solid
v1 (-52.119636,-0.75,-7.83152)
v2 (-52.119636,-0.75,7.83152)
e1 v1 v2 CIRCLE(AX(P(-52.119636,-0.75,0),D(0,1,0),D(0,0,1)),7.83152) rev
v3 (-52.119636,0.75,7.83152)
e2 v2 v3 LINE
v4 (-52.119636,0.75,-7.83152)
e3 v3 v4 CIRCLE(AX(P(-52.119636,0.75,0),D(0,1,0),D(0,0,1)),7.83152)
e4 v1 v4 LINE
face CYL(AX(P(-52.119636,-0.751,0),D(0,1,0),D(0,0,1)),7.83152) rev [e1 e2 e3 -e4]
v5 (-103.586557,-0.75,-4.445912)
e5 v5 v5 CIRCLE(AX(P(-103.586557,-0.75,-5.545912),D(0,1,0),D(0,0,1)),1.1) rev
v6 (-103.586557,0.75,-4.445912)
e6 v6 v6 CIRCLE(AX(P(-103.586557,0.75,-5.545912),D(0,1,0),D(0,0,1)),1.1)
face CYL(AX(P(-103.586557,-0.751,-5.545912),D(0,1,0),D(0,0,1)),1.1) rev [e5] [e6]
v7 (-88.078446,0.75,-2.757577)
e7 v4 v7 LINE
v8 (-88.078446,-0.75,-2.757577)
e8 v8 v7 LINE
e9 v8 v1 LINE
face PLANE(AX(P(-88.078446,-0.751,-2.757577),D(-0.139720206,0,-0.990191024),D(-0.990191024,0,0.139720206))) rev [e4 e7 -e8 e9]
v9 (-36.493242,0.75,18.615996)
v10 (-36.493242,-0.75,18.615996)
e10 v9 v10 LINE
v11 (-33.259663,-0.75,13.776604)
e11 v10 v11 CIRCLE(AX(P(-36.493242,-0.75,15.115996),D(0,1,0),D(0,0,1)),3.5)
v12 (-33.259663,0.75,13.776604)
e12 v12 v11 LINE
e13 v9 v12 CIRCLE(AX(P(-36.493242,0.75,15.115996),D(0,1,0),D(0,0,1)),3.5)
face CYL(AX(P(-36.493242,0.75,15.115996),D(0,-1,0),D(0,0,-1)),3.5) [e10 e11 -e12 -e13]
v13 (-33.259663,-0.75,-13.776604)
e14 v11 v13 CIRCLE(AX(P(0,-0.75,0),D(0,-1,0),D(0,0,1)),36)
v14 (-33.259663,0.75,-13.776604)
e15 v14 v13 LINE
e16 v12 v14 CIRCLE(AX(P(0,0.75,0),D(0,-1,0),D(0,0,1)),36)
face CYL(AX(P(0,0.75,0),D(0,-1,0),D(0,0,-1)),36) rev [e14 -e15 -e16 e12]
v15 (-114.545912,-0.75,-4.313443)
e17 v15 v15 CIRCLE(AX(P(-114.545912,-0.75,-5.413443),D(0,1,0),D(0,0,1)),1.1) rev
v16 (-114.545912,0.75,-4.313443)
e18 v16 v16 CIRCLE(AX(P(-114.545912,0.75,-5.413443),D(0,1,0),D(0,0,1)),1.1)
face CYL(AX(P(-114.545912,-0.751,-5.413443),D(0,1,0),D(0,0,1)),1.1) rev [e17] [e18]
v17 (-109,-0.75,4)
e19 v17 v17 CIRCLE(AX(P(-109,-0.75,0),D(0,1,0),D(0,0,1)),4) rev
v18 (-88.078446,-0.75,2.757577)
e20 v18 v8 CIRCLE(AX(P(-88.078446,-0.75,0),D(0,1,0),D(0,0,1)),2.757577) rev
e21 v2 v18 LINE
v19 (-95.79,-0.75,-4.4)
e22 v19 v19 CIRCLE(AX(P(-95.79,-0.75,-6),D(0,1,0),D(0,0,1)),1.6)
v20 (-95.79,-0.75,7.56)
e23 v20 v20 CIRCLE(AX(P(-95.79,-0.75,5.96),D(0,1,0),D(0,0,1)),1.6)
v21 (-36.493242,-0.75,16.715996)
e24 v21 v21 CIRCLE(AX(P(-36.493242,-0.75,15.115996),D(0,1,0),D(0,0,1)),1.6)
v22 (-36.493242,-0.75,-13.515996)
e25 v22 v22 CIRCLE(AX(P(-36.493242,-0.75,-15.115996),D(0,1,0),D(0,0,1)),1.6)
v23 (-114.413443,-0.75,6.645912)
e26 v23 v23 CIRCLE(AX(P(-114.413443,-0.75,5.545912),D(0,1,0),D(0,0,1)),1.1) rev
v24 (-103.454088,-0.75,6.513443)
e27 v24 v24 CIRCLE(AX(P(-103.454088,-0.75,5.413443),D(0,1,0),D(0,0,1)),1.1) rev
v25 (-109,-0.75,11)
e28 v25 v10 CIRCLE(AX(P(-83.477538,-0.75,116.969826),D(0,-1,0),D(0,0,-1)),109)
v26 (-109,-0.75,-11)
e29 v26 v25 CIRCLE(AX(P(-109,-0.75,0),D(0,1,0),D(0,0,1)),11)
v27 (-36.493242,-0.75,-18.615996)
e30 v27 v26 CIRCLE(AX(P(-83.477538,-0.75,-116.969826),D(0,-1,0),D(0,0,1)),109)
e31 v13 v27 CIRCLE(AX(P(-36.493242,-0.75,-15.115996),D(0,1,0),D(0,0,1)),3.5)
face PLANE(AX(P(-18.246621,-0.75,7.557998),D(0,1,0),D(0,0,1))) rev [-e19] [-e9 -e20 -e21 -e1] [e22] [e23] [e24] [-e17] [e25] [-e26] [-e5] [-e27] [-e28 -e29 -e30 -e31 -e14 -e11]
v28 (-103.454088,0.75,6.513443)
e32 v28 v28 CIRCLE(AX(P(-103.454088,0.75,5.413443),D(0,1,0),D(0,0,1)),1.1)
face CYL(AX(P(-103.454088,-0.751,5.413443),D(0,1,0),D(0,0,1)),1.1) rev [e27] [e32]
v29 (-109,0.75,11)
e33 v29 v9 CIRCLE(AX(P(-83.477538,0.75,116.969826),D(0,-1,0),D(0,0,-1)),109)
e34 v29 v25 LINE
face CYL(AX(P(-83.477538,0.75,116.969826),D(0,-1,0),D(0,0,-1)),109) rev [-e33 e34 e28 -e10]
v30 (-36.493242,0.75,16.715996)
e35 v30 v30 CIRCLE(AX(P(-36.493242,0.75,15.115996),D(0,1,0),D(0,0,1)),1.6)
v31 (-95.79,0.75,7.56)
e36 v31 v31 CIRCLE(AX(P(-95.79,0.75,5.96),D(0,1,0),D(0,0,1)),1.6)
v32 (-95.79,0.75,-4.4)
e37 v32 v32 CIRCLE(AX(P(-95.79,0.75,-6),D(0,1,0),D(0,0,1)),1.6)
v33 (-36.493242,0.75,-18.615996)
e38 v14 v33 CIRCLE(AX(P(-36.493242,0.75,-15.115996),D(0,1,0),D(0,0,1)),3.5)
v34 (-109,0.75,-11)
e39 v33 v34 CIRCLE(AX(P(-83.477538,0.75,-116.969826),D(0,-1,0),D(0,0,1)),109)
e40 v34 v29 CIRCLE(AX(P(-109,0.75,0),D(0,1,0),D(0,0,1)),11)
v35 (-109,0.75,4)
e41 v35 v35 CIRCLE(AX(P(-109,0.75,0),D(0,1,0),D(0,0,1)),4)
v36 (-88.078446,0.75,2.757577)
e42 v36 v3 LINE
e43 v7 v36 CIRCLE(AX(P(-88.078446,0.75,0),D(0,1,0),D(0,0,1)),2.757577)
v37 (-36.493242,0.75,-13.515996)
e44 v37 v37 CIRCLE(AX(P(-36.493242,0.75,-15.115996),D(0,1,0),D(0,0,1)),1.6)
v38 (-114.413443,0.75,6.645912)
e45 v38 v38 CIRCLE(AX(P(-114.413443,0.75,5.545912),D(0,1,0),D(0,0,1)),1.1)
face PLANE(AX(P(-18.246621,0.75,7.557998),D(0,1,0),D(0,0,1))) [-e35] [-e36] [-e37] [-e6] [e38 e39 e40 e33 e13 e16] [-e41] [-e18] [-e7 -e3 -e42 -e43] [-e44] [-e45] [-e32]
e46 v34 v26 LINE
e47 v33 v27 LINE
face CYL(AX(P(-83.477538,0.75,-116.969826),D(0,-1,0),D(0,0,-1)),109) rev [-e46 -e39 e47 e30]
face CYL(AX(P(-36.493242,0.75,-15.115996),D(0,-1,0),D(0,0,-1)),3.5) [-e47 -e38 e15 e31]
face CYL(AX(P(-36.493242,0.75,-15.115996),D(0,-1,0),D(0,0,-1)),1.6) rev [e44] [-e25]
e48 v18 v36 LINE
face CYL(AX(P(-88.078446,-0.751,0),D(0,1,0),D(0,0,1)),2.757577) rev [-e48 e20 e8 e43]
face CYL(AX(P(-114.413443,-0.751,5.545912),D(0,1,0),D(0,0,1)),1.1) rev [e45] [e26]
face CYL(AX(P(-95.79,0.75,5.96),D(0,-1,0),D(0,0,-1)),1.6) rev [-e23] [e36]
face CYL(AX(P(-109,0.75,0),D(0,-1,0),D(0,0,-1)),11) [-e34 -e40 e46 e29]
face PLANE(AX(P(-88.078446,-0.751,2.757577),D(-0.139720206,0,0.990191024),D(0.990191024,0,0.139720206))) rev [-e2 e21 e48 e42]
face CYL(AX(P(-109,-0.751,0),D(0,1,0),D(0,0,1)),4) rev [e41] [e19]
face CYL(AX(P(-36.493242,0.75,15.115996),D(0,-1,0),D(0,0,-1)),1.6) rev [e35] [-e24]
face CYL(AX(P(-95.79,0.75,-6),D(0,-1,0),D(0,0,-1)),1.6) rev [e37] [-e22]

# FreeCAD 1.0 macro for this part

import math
import FreeCAD as App
import Part
import Sketcher
from FreeCAD import Vector

doc = App.newDocument("Part")
body = doc.addObject("PartDesign::Body", "Body")

# Sketch on XZ plane
sketch1 = body.newObject("Sketcher::SketchObject", "Sketch")
sketch1.AttachmentSupport = (doc.getObject("XZ_Plane"), [""])
sketch1.MapMode = "FlatFace"
sketch1.addGeometry([
    Part.ArcOfCircle(Part.Circle(Vector(0, 0, 0), Vector(0, 0, 1), 36), math.radians(157), math.radians(203)),  # 0
    Part.ArcOfCircle(Part.Circle(Vector(-36.5, -15.1, 0), Vector(0, 0, 1), 3.5), math.radians(-90), math.radians(22)),  # 1
    Part.ArcOfCircle(Part.Circle(Vector(-83.5, -117, 0), Vector(0, 0, 1), 109), math.radians(64), math.radians(104)),  # 2
    Part.ArcOfCircle(Part.Circle(Vector(-109, 0, 0), Vector(0, 0, 1), 11), math.radians(90), math.radians(270)),  # 3
    Part.ArcOfCircle(Part.Circle(Vector(-83.5, 117, 0), Vector(0, 0, 1), 109), math.radians(-104), math.radians(-64)),  # 4
    Part.ArcOfCircle(Part.Circle(Vector(-36.5, 15.1, 0), Vector(0, 0, 1), 3.5), math.radians(-22), math.radians(90)),  # 5
    Part.Circle(Vector(-36.5, 15.1, 0), Vector(0, 0, 1), 1.6),  # 6
    Part.Circle(Vector(-95.8, 6, 0), Vector(0, 0, 1), 1.6),  # 7
    Part.Circle(Vector(-36.5, -15.1, 0), Vector(0, 0, 1), 1.6),  # 8
    Part.Circle(Vector(-95.8, -6, 0), Vector(0, 0, 1), 1.6),  # 9
], False)
sketch1.addConstraint([
    Sketcher.Constraint("Tangent", 0, 2, 1, 2),
    Sketcher.Constraint("Coincident", 1, 1, 2, 1),
    Sketcher.Constraint("Coincident", 2, 2, 3, 2),
    Sketcher.Constraint("Coincident", 3, 1, 4, 1),
    Sketcher.Constraint("Coincident", 4, 2, 5, 2),
    Sketcher.Constraint("Tangent", 5, 1, 0, 1),
    Sketcher.Constraint("Coincident", 0, 3, -1, 1),
    Sketcher.Constraint("Coincident", 6, 3, 5, 3),
    Sketcher.Constraint("Coincident", 8, 3, 1, 3),
    Sketcher.Constraint("Equal", 2, 4),
    Sketcher.Constraint("Equal", 1, 5),
    Sketcher.Constraint("Equal", 6, 7),
    Sketcher.Constraint("Equal", 7, 8),
    Sketcher.Constraint("Equal", 8, 9),
    Sketcher.Constraint("Symmetric", 2, 3, 4, 3, -1),
    Sketcher.Constraint("PointOnObject", 3, 3, -1),
    Sketcher.Constraint("Vertical", 1, 3, 5, 3),
    Sketcher.Constraint("Vertical", 7, 3, 9, 3),
    Sketcher.Constraint("Vertical", 8, 3, 1, 1),
    Sketcher.Constraint("Vertical", 3, 3, 2, 2),
    Sketcher.Constraint("Radius", 0, 36.0),
    Sketcher.Constraint("Radius", 2, 109.0),
    Sketcher.Constraint("Radius", 3, 11.0),
    Sketcher.Constraint("Diameter", 6, 3.2),
    Sketcher.Constraint("Radius", 1, 3.5),
    Sketcher.Constraint("DistanceX", 3, 3, -1, 1, 109.0),
    Sketcher.Constraint("DistanceY", 9, 3, -1, 1, 6.0),
    Sketcher.Constraint("DistanceX", 7, 3, -1, 1, 95.79),
    Sketcher.Constraint("DistanceY", -1, 1, 7, 3, 5.96),
    Sketcher.Constraint("DistanceY", 0, 2, 5, 3, 28.892599),
])
pad1 = body.newObject("PartDesign::Pad", "Pad")
pad1.Profile = sketch1
pad1.Length = 1.5
pad1.Midplane = True

# Sketch on XZ plane
sketch2 = body.newObject("Sketcher::SketchObject", "Sketch001")
sketch2.AttachmentSupport = (doc.getObject("XZ_Plane"), [""])
sketch2.MapMode = "FlatFace"
sketch2.AttachmentOffset = App.Placement(Vector(0, 0, -0.75), App.Rotation())
sketch2.addGeometry(Part.Circle(Vector(-109, 0, 0), Vector(0, 0, 1), 4), False)
sketch2.addConstraint([
    Sketcher.Constraint("PointOnObject", 0, 3, -1),
    Sketcher.Constraint("Diameter", 0, 8.0),
    Sketcher.Constraint("DistanceX", 0, 3, -1, 1, 109.0),
])
pocket1 = body.newObject("PartDesign::Pocket", "Pocket")
pocket1.Profile = sketch2
pocket1.Type = "UpToFirst"
pocket1.Reversed = True

# Sketch on XZ plane
sketch3 = body.newObject("Sketcher::SketchObject", "Sketch002")
sketch3.AttachmentSupport = (doc.getObject("XZ_Plane"), [""])
sketch3.MapMode = "FlatFace"
sketch3.AttachmentOffset = App.Placement(Vector(0, 0, -0.75), App.Rotation())
sketch3.addGeometry(Part.Circle(Vector(-103.6, -5.5, 0), Vector(0, 0, 1), 1.1), False)
sketch3.addConstraint([
    Sketcher.Constraint("Diameter", 0, 2.2),
    Sketcher.Constraint("DistanceY", 0, 3, -1, 1, 5.545912),
    Sketcher.Constraint("DistanceX", 0, 3, -1, 1, 103.586557),
])
pocket2 = body.newObject("PartDesign::Pocket", "Pocket001")
pocket2.Profile = sketch3
pocket2.Type = "UpToFirst"
pocket2.Reversed = True

# Sketch on XZ plane
sketch4 = body.newObject("Sketcher::SketchObject", "Sketch003")
sketch4.AttachmentSupport = (doc.getObject("XZ_Plane"), [""])
sketch4.MapMode = "FlatFace"
sketch4.AttachmentOffset = App.Placement(Vector(0, 0, -0.75), App.Rotation())
sketch4.addGeometry(Part.Circle(Vector(-103.5, 5.4, 0), Vector(0, 0, 1), 1.1), False)
sketch4.addConstraint([
    Sketcher.Constraint("Diameter", 0, 2.2),
    Sketcher.Constraint("DistanceX", 0, 3, -1, 1, 103.454088),
    Sketcher.Constraint("DistanceY", -1, 1, 0, 3, 5.413443),
])
pocket3 = body.newObject("PartDesign::Pocket", "Pocket002")
pocket3.Profile = sketch4
pocket3.Type = "UpToFirst"
pocket3.Reversed = True

# Sketch on XZ plane
sketch5 = body.newObject("Sketcher::SketchObject", "Sketch004")
sketch5.AttachmentSupport = (doc.getObject("XZ_Plane"), [""])
sketch5.MapMode = "FlatFace"
sketch5.AttachmentOffset = App.Placement(Vector(0, 0, -0.75), App.Rotation())
sketch5.addGeometry(Part.Circle(Vector(-114.4, 5.5, 0), Vector(0, 0, 1), 1.1), False)
sketch5.addConstraint([
    Sketcher.Constraint("Diameter", 0, 2.2),
    Sketcher.Constraint("DistanceY", -1, 1, 0, 3, 5.545912),
    Sketcher.Constraint("DistanceX", 0, 3, -1, 1, 114.413443),
])
pocket4 = body.newObject("PartDesign::Pocket", "Pocket003")
pocket4.Profile = sketch5
pocket4.Type = "UpToFirst"
pocket4.Reversed = True

# Sketch on XZ plane
sketch6 = body.newObject("Sketcher::SketchObject", "Sketch005")
sketch6.AttachmentSupport = (doc.getObject("XZ_Plane"), [""])
sketch6.MapMode = "FlatFace"
sketch6.AttachmentOffset = App.Placement(Vector(0, 0, -0.75), App.Rotation())
sketch6.addGeometry(Part.Circle(Vector(-114.5, -5.4, 0), Vector(0, 0, 1), 1.1), False)
sketch6.addConstraint([
    Sketcher.Constraint("Diameter", 0, 2.2),
    Sketcher.Constraint("DistanceX", 0, 3, -1, 1, 114.545912),
    Sketcher.Constraint("DistanceY", 0, 3, -1, 1, 5.413443),
])
pocket5 = body.newObject("PartDesign::Pocket", "Pocket004")
pocket5.Profile = sketch6
pocket5.Type = "UpToFirst"
pocket5.Reversed = True

# Sketch on XZ plane
sketch7 = body.newObject("Sketcher::SketchObject", "Sketch006")
sketch7.AttachmentSupport = (doc.getObject("XZ_Plane"), [""])
sketch7.MapMode = "FlatFace"
sketch7.AttachmentOffset = App.Placement(Vector(0, 0, -0.75), App.Rotation())
sketch7.addGeometry([
    Part.LineSegment(Vector(-52.1, -7.8, 0), Vector(-88.1, -2.8, 0)),
    Part.ArcOfCircle(Part.Circle(Vector(-88.1, 0, 0), Vector(0, 0, 1), 2.8), math.radians(90), math.radians(270)),
    Part.LineSegment(Vector(-88.1, 2.8, 0), Vector(-52.1, 7.8, 0)),
    Part.ArcOfCircle(Part.Circle(Vector(-52.1, 0, 0), Vector(0, 0, 1), 7.8), math.radians(-90), math.radians(90)),
], False)
sketch7.addConstraint([
    Sketcher.Constraint("Coincident", 0, 2, 1, 2),
    Sketcher.Constraint("Coincident", 1, 1, 2, 1),
    Sketcher.Constraint("Coincident", 2, 2, 3, 2),
    Sketcher.Constraint("Coincident", 3, 1, 0, 1),
    Sketcher.Constraint("Symmetric", 0, 2, 1, 1, -1),
    Sketcher.Constraint("Symmetric", 2, 2, 3, 1, -1),
    Sketcher.Constraint("Vertical", 1, 3, 0, 2),
    Sketcher.Constraint("Vertical", 3, 3, 2, 2),
    Sketcher.Constraint("Radius", 3, 7.83152),
    Sketcher.Constraint("Radius", 1, 2.757577),
    Sketcher.Constraint("DistanceX", 1, 3, 3, 3, 35.95881),
    Sketcher.Constraint("DistanceX", 1, 3, -1, 1, 88.078446),
])
pocket6 = body.newObject("PartDesign::Pocket", "Pocket005")
pocket6.Profile = sketch7
pocket6.Type = "UpToFirst"
pocket6.Reversed = True

doc.recompute()
